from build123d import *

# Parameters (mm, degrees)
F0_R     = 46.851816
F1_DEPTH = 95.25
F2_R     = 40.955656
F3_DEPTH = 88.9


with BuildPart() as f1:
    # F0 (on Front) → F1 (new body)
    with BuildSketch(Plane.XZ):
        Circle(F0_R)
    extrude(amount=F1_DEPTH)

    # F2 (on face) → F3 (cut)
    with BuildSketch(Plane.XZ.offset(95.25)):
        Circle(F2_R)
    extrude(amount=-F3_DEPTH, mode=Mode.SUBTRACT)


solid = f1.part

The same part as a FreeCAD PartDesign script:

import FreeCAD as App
import Part
import Sketcher
from FreeCAD import Vector
Q = App.Units.Quantity

doc = App.newDocument("Part")
body = doc.addObject("PartDesign::Body", "Body")

sketch1 = body.newObject("Sketcher::SketchObject", "Sketch")
sketch1.AttachmentSupport = (doc.getObject("XZ_Plane"), [""])
sketch1.MapMode = "FlatFace"
sketch1.addGeometry(Part.Circle(Vector(0, 0, 0), Vector(0, 0, 1), 47), False)
sketch1.addConstraint([
    Sketcher.Constraint("Coincident", 0, 3, -1, 1),
    Sketcher.Constraint("Diameter", 0, 93.703632),
])
pad1 = body.newObject("PartDesign::Pad", "Pad")
pad1.Profile = sketch1
pad1.Length = Q("3.75 in")

sketch2 = body.newObject("Sketcher::SketchObject", "Sketch001")
sketch2.AttachmentSupport = (doc.getObject("XZ_Plane"), [""])
sketch2.MapMode = "FlatFace"
sketch2.AttachmentOffset = App.Placement(Vector(0, 0, 3.75 * 25.4), App.Rotation())
sketch2.addGeometry(Part.Circle(Vector(0, 0, 0), Vector(0, 0, 1), 41), False)
sketch2.addConstraint([
    Sketcher.Constraint("Coincident", 0, 3, -1, 1),
    Sketcher.Constraint("Diameter", 0, 81.911312),
])
pocket1 = body.newObject("PartDesign::Pocket", "Pocket")
pocket1.Profile = sketch2
pocket1.Length = Q("3.5 in")

doc.recompute()
